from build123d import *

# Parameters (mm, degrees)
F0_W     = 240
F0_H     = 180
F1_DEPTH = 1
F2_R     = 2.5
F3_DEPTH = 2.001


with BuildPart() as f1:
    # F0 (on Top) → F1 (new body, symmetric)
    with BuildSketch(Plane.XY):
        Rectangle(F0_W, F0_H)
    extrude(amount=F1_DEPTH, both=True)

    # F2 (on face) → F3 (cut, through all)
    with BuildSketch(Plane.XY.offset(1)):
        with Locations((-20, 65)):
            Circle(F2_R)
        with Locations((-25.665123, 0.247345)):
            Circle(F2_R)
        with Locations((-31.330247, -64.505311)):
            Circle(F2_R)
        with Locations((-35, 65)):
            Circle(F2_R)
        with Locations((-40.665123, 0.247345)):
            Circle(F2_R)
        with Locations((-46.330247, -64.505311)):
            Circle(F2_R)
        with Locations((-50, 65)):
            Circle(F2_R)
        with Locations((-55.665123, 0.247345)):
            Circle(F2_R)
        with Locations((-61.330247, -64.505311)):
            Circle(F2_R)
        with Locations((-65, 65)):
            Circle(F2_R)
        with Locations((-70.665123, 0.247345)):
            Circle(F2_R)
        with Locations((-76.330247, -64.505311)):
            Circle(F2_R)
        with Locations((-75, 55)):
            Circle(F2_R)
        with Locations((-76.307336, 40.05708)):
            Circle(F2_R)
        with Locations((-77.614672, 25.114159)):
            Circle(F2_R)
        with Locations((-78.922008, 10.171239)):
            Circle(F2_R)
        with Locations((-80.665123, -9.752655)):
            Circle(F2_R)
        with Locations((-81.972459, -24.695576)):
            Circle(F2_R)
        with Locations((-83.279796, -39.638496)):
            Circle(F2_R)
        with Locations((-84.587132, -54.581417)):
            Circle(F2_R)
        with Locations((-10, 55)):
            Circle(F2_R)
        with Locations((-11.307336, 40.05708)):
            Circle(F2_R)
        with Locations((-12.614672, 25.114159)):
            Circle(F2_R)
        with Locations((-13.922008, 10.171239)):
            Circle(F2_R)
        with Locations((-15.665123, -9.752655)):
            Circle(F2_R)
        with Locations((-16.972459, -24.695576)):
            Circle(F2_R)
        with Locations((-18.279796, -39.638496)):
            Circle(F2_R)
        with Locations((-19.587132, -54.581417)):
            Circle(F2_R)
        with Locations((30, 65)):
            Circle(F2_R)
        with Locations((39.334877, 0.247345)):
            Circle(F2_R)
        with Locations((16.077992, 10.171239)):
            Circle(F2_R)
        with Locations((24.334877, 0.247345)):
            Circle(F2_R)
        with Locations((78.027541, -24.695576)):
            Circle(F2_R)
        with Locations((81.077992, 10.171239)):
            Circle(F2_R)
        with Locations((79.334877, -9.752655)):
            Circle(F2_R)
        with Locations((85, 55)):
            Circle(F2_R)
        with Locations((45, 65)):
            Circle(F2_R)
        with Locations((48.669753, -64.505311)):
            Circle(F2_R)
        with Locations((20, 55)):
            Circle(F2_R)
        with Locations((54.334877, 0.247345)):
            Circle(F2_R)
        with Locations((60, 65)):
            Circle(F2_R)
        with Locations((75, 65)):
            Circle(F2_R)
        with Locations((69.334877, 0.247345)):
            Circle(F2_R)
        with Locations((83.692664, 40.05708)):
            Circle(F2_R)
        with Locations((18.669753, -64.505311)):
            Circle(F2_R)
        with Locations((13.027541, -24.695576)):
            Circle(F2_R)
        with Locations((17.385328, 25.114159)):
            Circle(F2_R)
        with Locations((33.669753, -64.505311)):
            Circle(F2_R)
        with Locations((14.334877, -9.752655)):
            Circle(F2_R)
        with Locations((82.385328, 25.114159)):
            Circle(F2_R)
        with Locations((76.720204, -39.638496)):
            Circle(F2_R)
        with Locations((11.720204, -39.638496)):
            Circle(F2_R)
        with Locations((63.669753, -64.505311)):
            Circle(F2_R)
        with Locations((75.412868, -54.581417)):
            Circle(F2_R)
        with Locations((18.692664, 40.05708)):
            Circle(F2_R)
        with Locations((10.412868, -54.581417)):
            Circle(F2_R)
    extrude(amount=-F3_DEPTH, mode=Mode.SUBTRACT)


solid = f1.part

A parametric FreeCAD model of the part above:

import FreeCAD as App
import Part
import Sketcher
from FreeCAD import Vector

doc = App.newDocument("Part")
params = doc.addObject("Spreadsheet::Sheet", "Params")
for row, (alias, value) in enumerate([
    ("sketch1_width", "240 mm"),
    ("sketch1_height", "180 mm"),
    ("pad1_length", "2 mm"),
    ("sketch2_diameter", "5 mm"),
], start=1):
    params.set(f"A{row}", alias)
    params.set(f"B{row}", "=" + value)
    params.setAlias(f"B{row}", alias)

body = doc.addObject("PartDesign::Body", "Body")

# Sketch on XY plane
sketch1 = body.newObject("Sketcher::SketchObject", "Sketch")
sketch1.AttachmentSupport = (doc.getObject("XY_Plane"), [""])
sketch1.MapMode = "FlatFace"
sketch1.addGeometry(Part.LineSegment(Vector(-120, 90, 0), Vector(-120, -90, 0)), False)
sketch1.addGeometry(Part.LineSegment(Vector(-120, -90, 0), Vector(120, -90, 0)), False)
sketch1.addGeometry(Part.LineSegment(Vector(120, -90, 0), Vector(120, 90, 0)), False)
sketch1.addGeometry(Part.LineSegment(Vector(120, 90, 0), Vector(-120, 90, 0)), False)
sketch1.addConstraint(Sketcher.Constraint("Coincident", 0, 2, 1, 1))
sketch1.addConstraint(Sketcher.Constraint("Coincident", 1, 2, 2, 1))
sketch1.addConstraint(Sketcher.Constraint("Coincident", 2, 2, 3, 1))
sketch1.addConstraint(Sketcher.Constraint("Coincident", 3, 2, 0, 1))
sketch1.addConstraint(Sketcher.Constraint("Vertical", 0))
sketch1.addConstraint(Sketcher.Constraint("Horizontal", 1))
sketch1.addConstraint(Sketcher.Constraint("Vertical", 2))
sketch1.addConstraint(Sketcher.Constraint("Horizontal", 3))
sketch1.addConstraint(Sketcher.Constraint("Symmetric", 0, 2, 2, 2, -1, 1))
sketch1.addConstraint(Sketcher.Constraint("DistanceX", 1, 1, 1, 2, 240.0))
sketch1.addConstraint(Sketcher.Constraint("DistanceY", 0, 2, 0, 1, 180.0))
sketch1.setExpression("Constraints[9]", "Params.sketch1_width")
sketch1.setExpression("Constraints[10]", "Params.sketch1_height")
pad1 = body.newObject("PartDesign::Pad", "Pad")
pad1.Profile = sketch1
pad1.setExpression("Length", "Params.pad1_length")
pad1.Midplane = True

# Sketch on XY plane
sketch2 = body.newObject("Sketcher::SketchObject", "Sketch001")
sketch2.AttachmentSupport = (doc.getObject("XY_Plane"), [""])
sketch2.MapMode = "FlatFace"
sketch2.AttachmentOffset = App.Placement(Vector(0, 0, 1), App.Rotation())
sketch2.addGeometry(Part.Circle(Vector(-20, 65, 0), Vector(0, 0, 1), 2.5), False)
sketch2.addGeometry(Part.Circle(Vector(-25.7, 0.2, 0), Vector(0, 0, 1), 2.5), False)
sketch2.addGeometry(Part.Circle(Vector(-31.3, -64.5, 0), Vector(0, 0, 1), 2.5), False)
sketch2.addGeometry(Part.Circle(Vector(-35, 65, 0), Vector(0, 0, 1), 2.5), False)
sketch2.addGeometry(Part.Circle(Vector(-40.7, 0.2, 0), Vector(0, 0, 1), 2.5), False)
sketch2.addGeometry(Part.Circle(Vector(-46.3, -64.5, 0), Vector(0, 0, 1), 2.5), False)
sketch2.addGeometry(Part.Circle(Vector(-50, 65, 0), Vector(0, 0, 1), 2.5), False)
sketch2.addGeometry(Part.Circle(Vector(-55.7, 0.2, 0), Vector(0, 0, 1), 2.5), False)
sketch2.addGeometry(Part.Circle(Vector(-61.3, -64.5, 0), Vector(0, 0, 1), 2.5), False)
sketch2.addGeometry(Part.Circle(Vector(-65, 65, 0), Vector(0, 0, 1), 2.5), False)
sketch2.addGeometry(Part.Circle(Vector(-70.7, 0.2, 0), Vector(0, 0, 1), 2.5), False)
sketch2.addGeometry(Part.Circle(Vector(-76.3, -64.5, 0), Vector(0, 0, 1), 2.5), False)
sketch2.addGeometry(Part.Circle(Vector(-75, 55, 0), Vector(0, 0, 1), 2.5), False)
sketch2.addGeometry(Part.Circle(Vector(-76.3, 40.1, 0), Vector(0, 0, 1), 2.5), False)
sketch2.addGeometry(Part.Circle(Vector(-77.6, 25.1, 0), Vector(0, 0, 1), 2.5), False)
sketch2.addGeometry(Part.Circle(Vector(-78.9, 10.2, 0), Vector(0, 0, 1), 2.5), False)
sketch2.addGeometry(Part.Circle(Vector(-80.7, -9.8, 0), Vector(0, 0, 1), 2.5), False)
sketch2.addGeometry(Part.Circle(Vector(-82, -24.7, 0), Vector(0, 0, 1), 2.5), False)
sketch2.addGeometry(Part.Circle(Vector(-83.3, -39.6, 0), Vector(0, 0, 1), 2.5), False)
sketch2.addGeometry(Part.Circle(Vector(-84.6, -54.6, 0), Vector(0, 0, 1), 2.5), False)
sketch2.addGeometry(Part.Circle(Vector(-10, 55, 0), Vector(0, 0, 1), 2.5), False)
sketch2.addGeometry(Part.Circle(Vector(-11.3, 40.1, 0), Vector(0, 0, 1), 2.5), False)
sketch2.addGeometry(Part.Circle(Vector(-12.6, 25.1, 0), Vector(0, 0, 1), 2.5), False)
sketch2.addGeometry(Part.Circle(Vector(-13.9, 10.2, 0), Vector(0, 0, 1), 2.5), False)
sketch2.addGeometry(Part.Circle(Vector(-15.7, -9.8, 0), Vector(0, 0, 1), 2.5), False)
sketch2.addGeometry(Part.Circle(Vector(-17, -24.7, 0), Vector(0, 0, 1), 2.5), False)
sketch2.addGeometry(Part.Circle(Vector(-18.3, -39.6, 0), Vector(0, 0, 1), 2.5), False)
sketch2.addGeometry(Part.Circle(Vector(-19.6, -54.6, 0), Vector(0, 0, 1), 2.5), False)
sketch2.addGeometry(Part.Circle(Vector(30, 65, 0), Vector(0, 0, 1), 2.5), False)
sketch2.addGeometry(Part.Circle(Vector(39.3, 0.2, 0), Vector(0, 0, 1), 2.5), False)
sketch2.addGeometry(Part.Circle(Vector(16.1, 10.2, 0), Vector(0, 0, 1), 2.5), False)
sketch2.addGeometry(Part.Circle(Vector(24.3, 0.2, 0), Vector(0, 0, 1), 2.5), False)
sketch2.addGeometry(Part.Circle(Vector(78, -24.7, 0), Vector(0, 0, 1), 2.5), False)
sketch2.addGeometry(Part.Circle(Vector(81.1, 10.2, 0), Vector(0, 0, 1), 2.5), False)
sketch2.addGeometry(Part.Circle(Vector(79.3, -9.8, 0), Vector(0, 0, 1), 2.5), False)
sketch2.addGeometry(Part.Circle(Vector(85, 55, 0), Vector(0, 0, 1), 2.5), False)
sketch2.addGeometry(Part.Circle(Vector(45, 65, 0), Vector(0, 0, 1), 2.5), False)
sketch2.addGeometry(Part.Circle(Vector(48.7, -64.5, 0), Vector(0, 0, 1), 2.5), False)
sketch2.addGeometry(Part.Circle(Vector(20, 55, 0), Vector(0, 0, 1), 2.5), False)
sketch2.addGeometry(Part.Circle(Vector(54.3, 0.2, 0), Vector(0, 0, 1), 2.5), False)
sketch2.addGeometry(Part.Circle(Vector(60, 65, 0), Vector(0, 0, 1), 2.5), False)
sketch2.addGeometry(Part.Circle(Vector(75, 65, 0), Vector(0, 0, 1), 2.5), False)
sketch2.addGeometry(Part.Circle(Vector(69.3, 0.2, 0), Vector(0, 0, 1), 2.5), False)
sketch2.addGeometry(Part.Circle(Vector(83.7, 40.1, 0), Vector(0, 0, 1), 2.5), False)
sketch2.addGeometry(Part.Circle(Vector(18.7, -64.5, 0), Vector(0, 0, 1), 2.5), False)
sketch2.addGeometry(Part.Circle(Vector(13, -24.7, 0), Vector(0, 0, 1), 2.5), False)
sketch2.addGeometry(Part.Circle(Vector(17.4, 25.1, 0), Vector(0, 0, 1), 2.5), False)
sketch2.addGeometry(Part.Circle(Vector(33.7, -64.5, 0), Vector(0, 0, 1), 2.5), False)
sketch2.addGeometry(Part.Circle(Vector(14.3, -9.8, 0), Vector(0, 0, 1), 2.5), False)
sketch2.addGeometry(Part.Circle(Vector(82.4, 25.1, 0), Vector(0, 0, 1), 2.5), False)
sketch2.addGeometry(Part.Circle(Vector(76.7, -39.6, 0), Vector(0, 0, 1), 2.5), False)
sketch2.addGeometry(Part.Circle(Vector(11.7, -39.6, 0), Vector(0, 0, 1), 2.5), False)
sketch2.addGeometry(Part.Circle(Vector(63.7, -64.5, 0), Vector(0, 0, 1), 2.5), False)
sketch2.addGeometry(Part.Circle(Vector(75.4, -54.6, 0), Vector(0, 0, 1), 2.5), False)
sketch2.addGeometry(Part.Circle(Vector(18.7, 40.1, 0), Vector(0, 0, 1), 2.5), False)
sketch2.addGeometry(Part.Circle(Vector(10.4, -54.6, 0), Vector(0, 0, 1), 2.5), False)
sketch2.addConstraint(Sketcher.Constraint("Equal", 0, 1))
sketch2.addConstraint(Sketcher.Constraint("Equal", 1, 2))
sketch2.addConstraint(Sketcher.Constraint("Equal", 2, 3))
sketch2.addConstraint(Sketcher.Constraint("Equal", 3, 4))
sketch2.addConstraint(Sketcher.Constraint("Equal", 4, 5))
sketch2.addConstraint(Sketcher.Constraint("Equal", 5, 6))
sketch2.addConstraint(Sketcher.Constraint("Equal", 6, 7))
sketch2.addConstraint(Sketcher.Constraint("Equal", 7, 8))
sketch2.addConstraint(Sketcher.Constraint("Equal", 8, 9))
sketch2.addConstraint(Sketcher.Constraint("Equal", 9, 10))
sketch2.addConstraint(Sketcher.Constraint("Equal", 10, 11))
sketch2.addConstraint(Sketcher.Constraint("Equal", 11, 12))
sketch2.addConstraint(Sketcher.Constraint("Equal", 12, 13))
sketch2.addConstraint(Sketcher.Constraint("Equal", 13, 14))
sketch2.addConstraint(Sketcher.Constraint("Equal", 14, 15))
sketch2.addConstraint(Sketcher.Constraint("Equal", 15, 16))
sketch2.addConstraint(Sketcher.Constraint("Equal", 16, 17))
sketch2.addConstraint(Sketcher.Constraint("Equal", 17, 18))
sketch2.addConstraint(Sketcher.Constraint("Equal", 18, 19))
sketch2.addConstraint(Sketcher.Constraint("Equal", 19, 20))
sketch2.addConstraint(Sketcher.Constraint("Equal", 20, 21))
sketch2.addConstraint(Sketcher.Constraint("Equal", 21, 22))
sketch2.addConstraint(Sketcher.Constraint("Equal", 22, 23))
sketch2.addConstraint(Sketcher.Constraint("Equal", 23, 24))
sketch2.addConstraint(Sketcher.Constraint("Equal", 24, 25))
sketch2.addConstraint(Sketcher.Constraint("Equal", 25, 26))
sketch2.addConstraint(Sketcher.Constraint("Equal", 26, 27))
sketch2.addConstraint(Sketcher.Constraint("Equal", 27, 28))
sketch2.addConstraint(Sketcher.Constraint("Equal", 28, 29))
sketch2.addConstraint(Sketcher.Constraint("Equal", 29, 30))
sketch2.addConstraint(Sketcher.Constraint("Equal", 30, 31))
sketch2.addConstraint(Sketcher.Constraint("Equal", 31, 32))
sketch2.addConstraint(Sketcher.Constraint("Equal", 32, 33))
sketch2.addConstraint(Sketcher.Constraint("Equal", 33, 34))
sketch2.addConstraint(Sketcher.Constraint("Equal", 34, 35))
sketch2.addConstraint(Sketcher.Constraint("Equal", 35, 36))
sketch2.addConstraint(Sketcher.Constraint("Equal", 36, 37))
sketch2.addConstraint(Sketcher.Constraint("Equal", 37, 38))
sketch2.addConstraint(Sketcher.Constraint("Equal", 38, 39))
sketch2.addConstraint(Sketcher.Constraint("Equal", 39, 40))
sketch2.addConstraint(Sketcher.Constraint("Equal", 40, 41))
sketch2.addConstraint(Sketcher.Constraint("Equal", 41, 42))
sketch2.addConstraint(Sketcher.Constraint("Equal", 42, 43))
sketch2.addConstraint(Sketcher.Constraint("Equal", 43, 44))
sketch2.addConstraint(Sketcher.Constraint("Equal", 44, 45))
sketch2.addConstraint(Sketcher.Constraint("Equal", 45, 46))
sketch2.addConstraint(Sketcher.Constraint("Equal", 46, 47))
sketch2.addConstraint(Sketcher.Constraint("Equal", 47, 48))
sketch2.addConstraint(Sketcher.Constraint("Equal", 48, 49))
sketch2.addConstraint(Sketcher.Constraint("Equal", 49, 50))
sketch2.addConstraint(Sketcher.Constraint("Equal", 50, 51))
sketch2.addConstraint(Sketcher.Constraint("Equal", 51, 52))
sketch2.addConstraint(Sketcher.Constraint("Equal", 52, 53))
sketch2.addConstraint(Sketcher.Constraint("Equal", 53, 54))
sketch2.addConstraint(Sketcher.Constraint("Equal", 54, 55))
sketch2.addConstraint(Sketcher.Constraint("Horizontal", 0, 3, 3, 3))
sketch2.addConstraint(Sketcher.Constraint("Horizontal", 1, 3, 4, 3))
sketch2.addConstraint(Sketcher.Constraint("Horizontal", 2, 3, 5, 3))
sketch2.addConstraint(Sketcher.Constraint("Horizontal", 3, 3, 6, 3))
sketch2.addConstraint(Sketcher.Constraint("Horizontal", 4, 3, 7, 3))
sketch2.addConstraint(Sketcher.Constraint("Horizontal", 5, 3, 8, 3))
sketch2.addConstraint(Sketcher.Constraint("Horizontal", 6, 3, 9, 3))
sketch2.addConstraint(Sketcher.Constraint("Horizontal", 7, 3, 10, 3))
sketch2.addConstraint(Sketcher.Constraint("Horizontal", 8, 3, 11, 3))
sketch2.addConstraint(Sketcher.Constraint("Horizontal", 12, 3, 20, 3))
sketch2.addConstraint(Sketcher.Constraint("Horizontal", 13, 3, 21, 3))
sketch2.addConstraint(Sketcher.Constraint("Horizontal", 14, 3, 22, 3))
sketch2.addConstraint(Sketcher.Constraint("Horizontal", 15, 3, 23, 3))
sketch2.addConstraint(Sketcher.Constraint("Horizontal", 16, 3, 24, 3))
sketch2.addConstraint(Sketcher.Constraint("Horizontal", 17, 3, 25, 3))
sketch2.addConstraint(Sketcher.Constraint("Horizontal", 18, 3, 26, 3))
sketch2.addConstraint(Sketcher.Constraint("Horizontal", 19, 3, 27, 3))
sketch2.addConstraint(Sketcher.Constraint("Horizontal", 9, 3, 28, 3))
sketch2.addConstraint(Sketcher.Constraint("Horizontal", 10, 3, 29, 3))
sketch2.addConstraint(Sketcher.Constraint("Horizontal", 23, 3, 30, 3))
sketch2.addConstraint(Sketcher.Constraint("Horizontal", 29, 3, 31, 3))
sketch2.addConstraint(Sketcher.Constraint("Horizontal", 25, 3, 32, 3))
sketch2.addConstraint(Sketcher.Constraint("Horizontal", 30, 3, 33, 3))
sketch2.addConstraint(Sketcher.Constraint("Horizontal", 24, 3, 34, 3))
sketch2.addConstraint(Sketcher.Constraint("Horizontal", 20, 3, 35, 3))
sketch2.addConstraint(Sketcher.Constraint("Horizontal", 28, 3, 36, 3))
sketch2.addConstraint(Sketcher.Constraint("Horizontal", 11, 3, 37, 3))
sketch2.addConstraint(Sketcher.Constraint("Horizontal", 35, 3, 38, 3))
sketch2.addConstraint(Sketcher.Constraint("Horizontal", 31, 3, 39, 3))
sketch2.addConstraint(Sketcher.Constraint("Horizontal", 36, 3, 40, 3))
sketch2.addConstraint(Sketcher.Constraint("Horizontal", 40, 3, 41, 3))
sketch2.addConstraint(Sketcher.Constraint("Horizontal", 39, 3, 42, 3))
sketch2.addConstraint(Sketcher.Constraint("Horizontal", 21, 3, 43, 3))
sketch2.addConstraint(Sketcher.Constraint("Horizontal", 37, 3, 44, 3))
sketch2.addConstraint(Sketcher.Constraint("Horizontal", 32, 3, 45, 3))
sketch2.addConstraint(Sketcher.Constraint("Horizontal", 22, 3, 46, 3))
sketch2.addConstraint(Sketcher.Constraint("Horizontal", 44, 3, 47, 3))
sketch2.addConstraint(Sketcher.Constraint("Horizontal", 34, 3, 48, 3))
sketch2.addConstraint(Sketcher.Constraint("Horizontal", 46, 3, 49, 3))
sketch2.addConstraint(Sketcher.Constraint("Horizontal", 26, 3, 50, 3))
sketch2.addConstraint(Sketcher.Constraint("Horizontal", 50, 3, 51, 3))
sketch2.addConstraint(Sketcher.Constraint("Horizontal", 47, 3, 52, 3))
sketch2.addConstraint(Sketcher.Constraint("Horizontal", 27, 3, 53, 3))
sketch2.addConstraint(Sketcher.Constraint("Horizontal", 43, 3, 54, 3))
sketch2.addConstraint(Sketcher.Constraint("Horizontal", 53, 3, 55, 3))
sketch2.addConstraint(Sketcher.Constraint("Diameter", 0, 5.0))
sketch2.addConstraint(Sketcher.Constraint("DistanceX", 0, 3, -1, 1, 20.0))
sketch2.addConstraint(Sketcher.Constraint("DistanceY", -1, 1, 0, 3, 65.0))
sketch2.addConstraint(Sketcher.Constraint("DistanceX", 3, 3, -1, 1, 35.0))
sketch2.addConstraint(Sketcher.Constraint("DistanceX", 6, 3, -1, 1, 50.0))
sketch2.addConstraint(Sketcher.Constraint("DistanceX", 9, 3, -1, 1, 65.0))
sketch2.addConstraint(Sketcher.Constraint("DistanceX", 12, 3, -1, 1, 75.0))
sketch2.addConstraint(Sketcher.Constraint("DistanceY", -1, 1, 12, 3, 55.0))
sketch2.addConstraint(Sketcher.Constraint("DistanceX", 20, 3, -1, 1, 10.0))
sketch2.addConstraint(Sketcher.Constraint("DistanceX", -1, 1, 28, 3, 30.0))
sketch2.addConstraint(Sketcher.Constraint("DistanceX", -1, 1, 35, 3, 85.0))
sketch2.addConstraint(Sketcher.Constraint("DistanceX", -1, 1, 36, 3, 45.0))
sketch2.addConstraint(Sketcher.Constraint("DistanceX", -1, 1, 38, 3, 20.0))
sketch2.addConstraint(Sketcher.Constraint("DistanceX", -1, 1, 40, 3, 60.0))
sketch2.addConstraint(Sketcher.Constraint("DistanceX", -1, 1, 41, 3, 75.0))
sketch2.addConstraint(Sketcher.Constraint("DistanceX", 4, 3, 1, 3, 15.0))
sketch2.addConstraint(Sketcher.Constraint("DistanceX", 5, 3, 2, 3, 15.0))
sketch2.addConstraint(Sketcher.Constraint("DistanceX", 7, 3, 4, 3, 15.0))
sketch2.addConstraint(Sketcher.Constraint("DistanceX", 8, 3, 5, 3, 15.0))
sketch2.addConstraint(Sketcher.Constraint("DistanceX", 10, 3, 7, 3, 15.0))
sketch2.addConstraint(Sketcher.Constraint("DistanceX", 11, 3, 8, 3, 15.0))
sketch2.addConstraint(Sketcher.Constraint("DistanceX", 16, 3, 10, 3, 10.0))
sketch2.addConstraint(Sketcher.Constraint("DistanceY", 16, 3, 10, 3, 10.0))
sketch2.addConstraint(Sketcher.Constraint("DistanceX", 1, 3, 24, 3, 10.0))
sketch2.addConstraint(Sketcher.Constraint("DistanceX", 24, 3, 29, 3, 55.0))
sketch2.addConstraint(Sketcher.Constraint("DistanceX", 23, 3, 30, 3, 30.0))
sketch2.addConstraint(Sketcher.Constraint("DistanceX", 31, 3, 29, 3, 15.0))
sketch2.addConstraint(Sketcher.Constraint("DistanceX", 25, 3, 32, 3, 95.0))
sketch2.addConstraint(Sketcher.Constraint("DistanceX", 30, 3, 33, 3, 65.0))
sketch2.addConstraint(Sketcher.Constraint("DistanceX", 29, 3, 34, 3, 40.0))
sketch2.addConstraint(Sketcher.Constraint("DistanceX", 29, 3, 39, 3, 15.0))
sketch2.addConstraint(Sketcher.Constraint("DistanceX", 42, 3, 34, 3, 10.0))
sketch2.addConstraint(Sketcher.Constraint("DistanceX", 44, 3, 37, 3, 30.0))
sketch2.addConstraint(Sketcher.Constraint("DistanceX", 2, 3, 44, 3, 50.0))
sketch2.addConstraint(Sketcher.Constraint("DistanceX", 25, 3, 45, 3, 30.0))
sketch2.addConstraint(Sketcher.Constraint("DistanceX", 22, 3, 46, 3, 30.0))
sketch2.addConstraint(Sketcher.Constraint("DistanceX", 47, 3, 37, 3, 15.0))
sketch2.addConstraint(Sketcher.Constraint("DistanceX", 48, 3, 31, 3, 10.0))
sketch2.addConstraint(Sketcher.Constraint("DistanceX", 26, 3, 51, 3, 30.0))
sketch2.addConstraint(Sketcher.Constraint("DistanceX", 37, 3, 52, 3, 15.0))
sketch2.addConstraint(Sketcher.Constraint("DistanceX", 21, 3, 54, 3, 30.0))
sketch2.addConstraint(Sketcher.Constraint("DistanceX", 27, 3, 55, 3, 30.0))
sketch2.addConstraint(Sketcher.Constraint("DistanceY", 2, 3, -1, 1, 64.505311))
sketch2.addConstraint(Sketcher.Constraint("DistanceY", -1, 1, 13, 3, 40.05708))
sketch2.addConstraint(Sketcher.Constraint("DistanceX", 14, 3, -1, 1, 77.614672))
sketch2.addConstraint(Sketcher.Constraint("DistanceY", -1, 1, 14, 3, 25.114159))
sketch2.addConstraint(Sketcher.Constraint("DistanceX", 15, 3, -1, 1, 78.922008))
sketch2.addConstraint(Sketcher.Constraint("DistanceY", -1, 1, 15, 3, 10.171239))
sketch2.addConstraint(Sketcher.Constraint("DistanceX", 17, 3, -1, 1, 81.972459))
sketch2.addConstraint(Sketcher.Constraint("DistanceX", 19, 3, -1, 1, 84.587132))
sketch2.addConstraint(Sketcher.Constraint("DistanceX", 25, 3, -1, 1, 16.972459))
sketch2.addConstraint(Sketcher.Constraint("DistanceX", -1, 1, 30, 3, 16.077992))
sketch2.addConstraint(Sketcher.Constraint("DistanceX", -1, 1, 46, 3, 17.385328))
sketch2.addConstraint(Sketcher.Constraint("DistanceX", -1, 1, 49, 3, 82.385328))
sketch2.addConstraint(Sketcher.Constraint("DistanceX", -1, 1, 53, 3, 75.412868))
sketch2.addConstraint(Sketcher.Constraint("DistanceX", 14, 3, 10, 3, 6.949549))
sketch2.addConstraint(Sketcher.Constraint("DistanceX", 15, 3, 13, 3, 2.614672))
sketch2.addConstraint(Sketcher.Constraint("DistanceY", 17, 3, 16, 3, 14.942921))
sketch2.addConstraint(Sketcher.Constraint("DistanceY", 18, 3, 17, 3, 14.94292))
sketch2.addConstraint(Sketcher.Constraint("DistanceX", 18, 3, 11, 3, 6.949549))
sketch2.addConstraint(Sketcher.Constraint("DistanceY", 19, 3, 18, 3, 14.942921))
sketch2.addConstraint(Sketcher.Constraint("DistanceX", 2, 3, 26, 3, 13.050451))
sketch2.addConstraint(Sketcher.Constraint("DistanceX", 33, 3, 43, 3, 2.614672))
sketch2.addConstraint(Sketcher.Constraint("DistanceX", 37, 3, 50, 3, 28.050451))
sketch2.addConstraint(Sketcher.Constraint("DistanceY", -1, 1, 1, 3, 0.247345))
sketch2.addConstraint(Sketcher.Constraint("DistanceX", 2, 3, -1, 1, 31.330247))
sketch2.addConstraint(Sketcher.Constraint("DistanceX", 21, 3, -1, 1, 11.307336))
sketch2.addConstraint(Sketcher.Constraint("DistanceX", 27, 3, -1, 1, 19.587132))
sketch2.setExpression("Constraints[100]", "Params.sketch2_diameter")
pocket1 = body.newObject("PartDesign::Pocket", "Pocket")
pocket1.Profile = sketch2
pocket1.Type = "ThroughAll"

doc.recompute()
